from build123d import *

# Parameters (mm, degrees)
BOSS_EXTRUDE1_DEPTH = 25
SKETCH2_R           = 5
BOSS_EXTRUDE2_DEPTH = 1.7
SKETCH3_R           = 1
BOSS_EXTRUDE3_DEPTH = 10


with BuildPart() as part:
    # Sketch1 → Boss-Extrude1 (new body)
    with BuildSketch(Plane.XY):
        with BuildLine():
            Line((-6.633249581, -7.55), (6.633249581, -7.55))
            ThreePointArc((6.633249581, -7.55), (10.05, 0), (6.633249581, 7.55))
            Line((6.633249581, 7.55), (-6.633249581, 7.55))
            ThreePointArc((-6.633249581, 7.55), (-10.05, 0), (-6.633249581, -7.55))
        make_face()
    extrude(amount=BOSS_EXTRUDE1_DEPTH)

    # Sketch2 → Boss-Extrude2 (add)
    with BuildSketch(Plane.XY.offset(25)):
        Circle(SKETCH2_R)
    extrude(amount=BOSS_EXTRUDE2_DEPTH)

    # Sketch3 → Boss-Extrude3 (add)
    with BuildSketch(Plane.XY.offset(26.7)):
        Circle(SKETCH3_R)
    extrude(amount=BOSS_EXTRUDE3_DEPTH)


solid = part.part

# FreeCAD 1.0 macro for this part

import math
import FreeCAD as App
import Part
import Sketcher
Q = App.Units.Quantity

doc = App.newDocument("Part")
params = doc.addObject("Spreadsheet::Sheet", "Params")
for row, (alias, value) in enumerate([
    ("sketch1_radius", "10.05 mm"),
    ("pad1_length", "25 mm"),
    ("sketch2_diameter", "10 mm"),
    ("pad2_length", "1.7 mm"),
    ("sketch3_diameter", "2 mm"),
    ("pad3_length", "10 mm"),
], start=1):
    params.set(f"A{row}", alias)
    params.set(f"B{row}", "=" + value)
    params.setAlias(f"B{row}", alias)

body = doc.addObject("PartDesign::Body", "Body")

sketch1 = doc.addObject("Sketcher::SketchObject", "Sketch")
body.addObject(sketch1)
sketch1.AttachmentSupport = (doc.XY_Plane, [""])
sketch1.MapMode = "FlatFace"
sketch1.addGeometry([
    Part.LineSegment(App.Vector(-7, -8, 0), App.Vector(7, -8, 0)),
    Part.ArcOfCircle(Part.Circle(App.Vector(0, 0, 0), App.Vector(0, 0, 1), 10), math.radians(-49), math.radians(49)),
    Part.LineSegment(App.Vector(7, 8, 0), App.Vector(-7, 8, 0)),
    Part.ArcOfCircle(Part.Circle(App.Vector(0, 0, 0), App.Vector(0, 0, 1), 10), math.radians(131), math.radians(229)),
], False)
sketch1.addConstraint([
    Sketcher.Constraint("Coincident", 0, 2, 1, 1),
    Sketcher.Constraint("Coincident", 1, 2, 2, 1),
    Sketcher.Constraint("Coincident", 2, 2, 3, 1),
    Sketcher.Constraint("Coincident", 3, 2, 0, 1),
    Sketcher.Constraint("Horizontal", 0),
    Sketcher.Constraint("Horizontal", 2),
    Sketcher.Constraint("Coincident", 1, 3, -1, 1),
    Sketcher.Constraint("Coincident", 3, 3, -1, 1),
    Sketcher.Constraint("Equal", 1, 3),
    Sketcher.Constraint("Vertical", 0, 2, 1, 2),
    Sketcher.Constraint("Radius", 1, Q("10.05 mm")),
    Sketcher.Constraint("DistanceY", 0, 2, 1, 2, Q("15.1 mm")),
])
sketch1.setExpression("Constraints[10]", "Params.sketch1_radius")
pad1 = doc.addObject("PartDesign::Pad", "Pad")
body.addObject(pad1)
pad1.Profile = sketch1
pad1.setExpression("Length", "Params.pad1_length")

sketch2 = doc.addObject("Sketcher::SketchObject", "Sketch001")
body.addObject(sketch2)
sketch2.AttachmentSupport = (doc.XY_Plane, [""])
sketch2.MapMode = "FlatFace"
sketch2.AttachmentOffset = App.Placement(App.Vector(0, 0, 25), App.Rotation())
sketch2.addGeometry(Part.Circle(App.Vector(0, 0, 0), App.Vector(0, 0, 1), 5), False)
sketch2.addConstraint([
    Sketcher.Constraint("Coincident", 0, 3, -1, 1),
    Sketcher.Constraint("Diameter", 0, Q("10 mm")),
])
sketch2.setExpression("Constraints[1]", "Params.sketch2_diameter")
pad2 = doc.addObject("PartDesign::Pad", "Pad001")
body.addObject(pad2)
pad2.Profile = sketch2
pad2.setExpression("Length", "Params.pad2_length")

sketch3 = doc.addObject("Sketcher::SketchObject", "Sketch002")
body.addObject(sketch3)
sketch3.AttachmentSupport = (doc.XY_Plane, [""])
sketch3.MapMode = "FlatFace"
sketch3.AttachmentOffset = App.Placement(App.Vector(0, 0, 26.7), App.Rotation())
sketch3.addGeometry(Part.Circle(App.Vector(0, 0, 0), App.Vector(0, 0, 1), 1), False)
sketch3.addConstraint([
    Sketcher.Constraint("Coincident", 0, 3, -1, 1),
    Sketcher.Constraint("Diameter", 0, Q("2 mm")),
])
sketch3.setExpression("Constraints[1]", "Params.sketch3_diameter")
pad3 = doc.addObject("PartDesign::Pad", "Pad002")
body.addObject(pad3)
pad3.Profile = sketch3
pad3.setExpression("Length", "Params.pad3_length")

doc.recompute()
